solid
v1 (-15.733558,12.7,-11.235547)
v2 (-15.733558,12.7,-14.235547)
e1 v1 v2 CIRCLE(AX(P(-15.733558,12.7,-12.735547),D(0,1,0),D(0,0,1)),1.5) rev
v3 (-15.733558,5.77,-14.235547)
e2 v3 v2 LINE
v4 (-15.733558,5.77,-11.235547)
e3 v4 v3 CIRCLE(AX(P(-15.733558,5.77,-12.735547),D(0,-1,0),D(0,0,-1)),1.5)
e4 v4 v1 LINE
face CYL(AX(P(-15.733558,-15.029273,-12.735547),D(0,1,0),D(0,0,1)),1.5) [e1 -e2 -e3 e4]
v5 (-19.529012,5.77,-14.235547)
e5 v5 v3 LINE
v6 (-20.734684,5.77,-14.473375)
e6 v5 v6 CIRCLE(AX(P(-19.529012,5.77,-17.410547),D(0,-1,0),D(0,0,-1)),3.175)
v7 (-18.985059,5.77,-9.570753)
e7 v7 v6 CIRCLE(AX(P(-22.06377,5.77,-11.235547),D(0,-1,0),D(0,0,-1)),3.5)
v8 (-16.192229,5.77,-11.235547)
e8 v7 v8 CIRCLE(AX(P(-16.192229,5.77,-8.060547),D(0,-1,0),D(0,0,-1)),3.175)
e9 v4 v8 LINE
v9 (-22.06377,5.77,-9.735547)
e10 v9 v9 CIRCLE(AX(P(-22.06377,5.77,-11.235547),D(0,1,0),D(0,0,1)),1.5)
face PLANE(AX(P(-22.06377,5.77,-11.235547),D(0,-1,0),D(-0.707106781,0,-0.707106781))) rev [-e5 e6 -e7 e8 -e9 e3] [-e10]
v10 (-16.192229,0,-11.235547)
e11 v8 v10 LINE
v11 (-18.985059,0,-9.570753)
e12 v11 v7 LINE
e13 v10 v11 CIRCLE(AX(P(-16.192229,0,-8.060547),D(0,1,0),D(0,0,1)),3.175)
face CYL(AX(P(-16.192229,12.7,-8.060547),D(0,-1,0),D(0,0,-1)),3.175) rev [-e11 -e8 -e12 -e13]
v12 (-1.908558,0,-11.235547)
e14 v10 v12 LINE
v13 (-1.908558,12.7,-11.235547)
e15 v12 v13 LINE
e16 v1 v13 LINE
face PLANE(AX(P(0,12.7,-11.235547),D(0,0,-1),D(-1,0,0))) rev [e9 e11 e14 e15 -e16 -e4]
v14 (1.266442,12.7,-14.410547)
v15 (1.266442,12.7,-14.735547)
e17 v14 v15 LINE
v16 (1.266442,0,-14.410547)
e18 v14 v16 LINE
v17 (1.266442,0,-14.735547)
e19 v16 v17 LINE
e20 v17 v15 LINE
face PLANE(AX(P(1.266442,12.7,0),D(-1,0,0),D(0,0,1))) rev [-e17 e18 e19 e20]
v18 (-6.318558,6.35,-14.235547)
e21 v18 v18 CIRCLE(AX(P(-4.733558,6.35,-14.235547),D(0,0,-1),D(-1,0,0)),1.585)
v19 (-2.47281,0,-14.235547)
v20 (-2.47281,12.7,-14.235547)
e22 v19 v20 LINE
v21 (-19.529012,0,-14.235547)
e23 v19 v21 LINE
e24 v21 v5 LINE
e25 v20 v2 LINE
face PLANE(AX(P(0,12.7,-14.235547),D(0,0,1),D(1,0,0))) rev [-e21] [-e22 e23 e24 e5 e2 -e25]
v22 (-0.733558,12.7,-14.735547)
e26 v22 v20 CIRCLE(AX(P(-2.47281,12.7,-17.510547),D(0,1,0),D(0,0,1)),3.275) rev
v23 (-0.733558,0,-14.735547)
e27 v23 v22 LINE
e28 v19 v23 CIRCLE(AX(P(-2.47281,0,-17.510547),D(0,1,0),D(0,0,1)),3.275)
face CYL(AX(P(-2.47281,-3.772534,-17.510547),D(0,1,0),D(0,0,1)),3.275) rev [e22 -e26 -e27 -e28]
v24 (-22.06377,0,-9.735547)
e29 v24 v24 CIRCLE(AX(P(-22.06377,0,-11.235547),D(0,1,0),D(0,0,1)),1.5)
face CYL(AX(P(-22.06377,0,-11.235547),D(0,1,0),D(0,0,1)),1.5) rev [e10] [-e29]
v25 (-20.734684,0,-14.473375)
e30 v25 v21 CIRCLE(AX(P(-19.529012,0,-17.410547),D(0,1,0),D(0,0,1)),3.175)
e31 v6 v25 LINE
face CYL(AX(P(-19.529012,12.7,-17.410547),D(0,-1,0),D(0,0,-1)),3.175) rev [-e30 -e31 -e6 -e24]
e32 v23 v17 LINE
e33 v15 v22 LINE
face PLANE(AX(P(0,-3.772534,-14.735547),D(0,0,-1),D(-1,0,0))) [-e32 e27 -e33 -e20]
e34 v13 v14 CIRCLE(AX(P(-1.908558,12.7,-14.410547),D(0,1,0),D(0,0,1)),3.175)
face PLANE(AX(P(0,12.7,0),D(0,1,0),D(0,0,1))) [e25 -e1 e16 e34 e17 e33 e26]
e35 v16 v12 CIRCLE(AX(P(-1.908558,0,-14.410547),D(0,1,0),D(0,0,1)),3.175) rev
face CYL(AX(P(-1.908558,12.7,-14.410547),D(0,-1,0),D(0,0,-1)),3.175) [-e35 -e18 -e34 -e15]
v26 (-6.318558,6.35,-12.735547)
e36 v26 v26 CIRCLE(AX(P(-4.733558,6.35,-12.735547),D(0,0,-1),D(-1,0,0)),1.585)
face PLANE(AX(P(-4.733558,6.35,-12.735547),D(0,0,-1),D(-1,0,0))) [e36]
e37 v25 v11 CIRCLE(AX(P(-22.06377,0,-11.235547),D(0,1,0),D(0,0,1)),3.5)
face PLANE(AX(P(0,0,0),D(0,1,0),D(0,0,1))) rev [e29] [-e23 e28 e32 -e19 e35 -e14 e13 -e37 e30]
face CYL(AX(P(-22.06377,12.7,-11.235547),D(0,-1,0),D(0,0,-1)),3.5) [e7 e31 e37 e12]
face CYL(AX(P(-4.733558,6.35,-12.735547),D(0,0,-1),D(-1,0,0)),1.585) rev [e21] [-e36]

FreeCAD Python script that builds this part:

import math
import FreeCAD as App
import Part
import Sketcher
Q = App.Units.Quantity


def edges_at(feature, points):
    """Names of the edges that pass closest to the given points."""
    edges = feature.Shape.Edges
    near = lambda p: min(range(len(edges)), key=lambda i: edges[i].distToShape(Part.Vertex(*p))[0])
    return sorted({f"Edge{near(p) + 1}" for p in points})

doc = App.newDocument("Part")
body = doc.addObject("PartDesign::Body", "Body")

# Sketch on XZ plane
sketch1 = doc.addObject("Sketcher::SketchObject", "Sketch")
body.addObject(sketch1)
sketch1.AttachmentSupport = (doc.XZ_Plane, [""])
sketch1.MapMode = "FlatFace"
sketch1.addGeometry([
    Part.ArcOfCircle(Part.Circle(App.Vector(-22.1, -11.2, 0), App.Vector(0, 0, 1), 3.5), math.radians(0), math.radians(301)),
    Part.LineSegment(App.Vector(-18.6, -11.2, 0), App.Vector(1.3, -11.2, 0)),
    Part.LineSegment(App.Vector(1.3, -11.2, 0), App.Vector(1.3, -14.2, 0)),
    Part.LineSegment(App.Vector(1.3, -14.2, 0), App.Vector(-20.3, -14.2, 0)),
], False)
sketch1.addConstraint([
    Sketcher.Constraint("Coincident", 0, 1, 1, 1),
    Sketcher.Constraint("Coincident", 1, 2, 2, 1),
    Sketcher.Constraint("Coincident", 2, 2, 3, 1),
    Sketcher.Constraint("Coincident", 3, 2, 0, 2),
    Sketcher.Constraint("Horizontal", 1),
    Sketcher.Constraint("Vertical", 2),
    Sketcher.Constraint("Horizontal", 3),
    Sketcher.Constraint("Radius", 0, Q("3.5 mm")),
    Sketcher.Constraint("DistanceY", 2, 2, 2, 1, Q("3 mm")),
    Sketcher.Constraint("DistanceY", 2, 2, 0, 3, Q("3 mm")),
    Sketcher.Constraint("DistanceX", 1, 1, 1, 2, Q("19.830213 mm")),
    Sketcher.Constraint("DistanceX", 0, 3, -1, 1, Q("22.06377 mm")),
    Sketcher.Constraint("DistanceY", 0, 3, -1, 1, Q("11.235547 mm")),
])
pad1 = doc.addObject("PartDesign::Pad", "Pad")
body.addObject(pad1)
pad1.Profile = sketch1
pad1.Length = 12.7
pad1.Reversed = True

# Sketch on XZ plane
sketch2 = doc.addObject("Sketcher::SketchObject", "Sketch001")
body.addObject(sketch2)
sketch2.AttachmentSupport = (doc.XZ_Plane, [""])
sketch2.MapMode = "FlatFace"
sketch2.AttachmentOffset = App.Placement(App.Vector(0, 0, -5.77), App.Rotation())
sketch2.addGeometry([
    Part.LineSegment(App.Vector(-18.6, -11.2, 0), App.Vector(-15.7, -11.2, 0)),
    Part.ArcOfCircle(Part.Circle(App.Vector(-15.7, -12.7, 0), App.Vector(0, 0, 1), 1.5), math.radians(90), math.radians(270)),
    Part.LineSegment(App.Vector(-15.7, -14.2, 0), App.Vector(-20.3, -14.2, 0)),
    Part.ArcOfCircle(Part.Circle(App.Vector(-22.1, -11.2, 0), App.Vector(0, 0, 1), 3.5), math.radians(0), math.radians(301)),
], False)
sketch2.addConstraint([
    Sketcher.Constraint("Tangent", 0, 2, 1, 1),
    Sketcher.Constraint("Tangent", 1, 2, 2, 1),
    Sketcher.Constraint("Coincident", 2, 2, 3, 2),
    Sketcher.Constraint("Coincident", 3, 1, 0, 1),
    Sketcher.Constraint("Horizontal", 0),
    Sketcher.Constraint("Horizontal", 2),
    Sketcher.Constraint("Horizontal", 3, 3, 0, 2),
    Sketcher.Constraint("Radius", 1, Q("1.5 mm")),
    Sketcher.Constraint("Radius", 3, Q("3.5 mm")),
    Sketcher.Constraint("DistanceX", 0, 1, 0, 2, Q("2.830213 mm")),
    Sketcher.Constraint("DistanceX", 3, 3, -1, 1, Q("22.06377 mm")),
    Sketcher.Constraint("DistanceY", 1, 3, -1, 1, Q("12.735547 mm")),
])
pocket1 = doc.addObject("PartDesign::Pocket", "Pocket")
body.addObject(pocket1)
pocket1.Profile = sketch2
pocket1.Length = 6.93

# Sketch on XZ plane
sketch3 = doc.addObject("Sketcher::SketchObject", "Sketch002")
body.addObject(sketch3)
sketch3.AttachmentSupport = (doc.XZ_Plane, [""])
sketch3.MapMode = "FlatFace"
sketch3.AttachmentOffset = App.Placement(App.Vector(0, 0, -5.77), App.Rotation())
sketch3.addGeometry(Part.Circle(App.Vector(-22.1, -11.2, 0), App.Vector(0, 0, 1), 1.5), False)
sketch3.addConstraint([
    Sketcher.Constraint("Diameter", 0, Q("3 mm")),
    Sketcher.Constraint("DistanceX", 0, 3, -1, 1, Q("22.06377 mm")),
    Sketcher.Constraint("DistanceY", 0, 3, -1, 1, Q("11.235547 mm")),
])
pocket2 = doc.addObject("PartDesign::Pocket", "Pocket001")
body.addObject(pocket2)
pocket2.Profile = sketch3
pocket2.Type = "ThroughAll"
pocket2.Reversed = True

# Sketch on XZ plane
sketch4 = doc.addObject("Sketcher::SketchObject", "Sketch003")
body.addObject(sketch4)
sketch4.AttachmentSupport = (doc.XZ_Plane, [""])
sketch4.MapMode = "FlatFace"
sketch4.AttachmentOffset = App.Placement(App.Vector(0, 0, -12.7), App.Rotation())
sketch4.addGeometry([
    Part.LineSegment(App.Vector(1.3, -14.2, 0), App.Vector(1.3, -14.7, 0)),
    Part.LineSegment(App.Vector(1.3, -14.7, 0), App.Vector(-0.7, -14.7, 0)),
    Part.ArcOfCircle(Part.Circle(App.Vector(-2.5, -17.5, 0), App.Vector(0, 0, 1), 3.3), math.radians(58), math.radians(90)),
    Part.LineSegment(App.Vector(-2.5, -14.2, 0), App.Vector(1.3, -14.2, 0)),
], False)
sketch4.addConstraint([
    Sketcher.Constraint("Coincident", 0, 2, 1, 1),
    Sketcher.Constraint("Coincident", 1, 2, 2, 1),
    Sketcher.Constraint("Tangent", 2, 2, 3, 1),
    Sketcher.Constraint("Coincident", 3, 2, 0, 1),
    Sketcher.Constraint("Vertical", 0),
    Sketcher.Constraint("Horizontal", 1),
    Sketcher.Constraint("Horizontal", 3),
    Sketcher.Constraint("DistanceX", 1, 2, 1, 1, Q("2 mm")),
    Sketcher.Constraint("DistanceY", 0, 2, 0, 1, Q("0.5 mm")),
    Sketcher.Constraint("Radius", 2, Q("3.275 mm")),
    Sketcher.Constraint("DistanceX", 2, 3, -1, 1, Q("2.47281 mm")),
    Sketcher.Constraint("DistanceY", 2, 3, -1, 1, Q("17.510547 mm")),
])
pad2 = doc.addObject("PartDesign::Pad", "Pad001")
body.addObject(pad2)
pad2.Profile = sketch4
pad2.Length = 12.7
doc.recompute()

fillet = doc.addObject("PartDesign::Fillet", "Fillet")
body.addObject(fillet)
fillet.Base = (pad2, edges_at(pad2, [(-20.261, 2.885, -14.236), (-18.564, 2.885, -11.236), (1.266, 6.35, -11.236)]))
fillet.Radius = 3.175

# Sketch on XY plane
sketch5 = doc.addObject("Sketcher::SketchObject", "Sketch004")
body.addObject(sketch5)
sketch5.AttachmentSupport = (doc.XY_Plane, [""])
sketch5.MapMode = "FlatFace"
sketch5.AttachmentOffset = App.Placement(App.Vector(0, 0, -14.235547), App.Rotation())
sketch5.addGeometry([
    Part.Circle(App.Vector(37.2, -42.8, 0), App.Vector(0, 0, 1), 2),
    Part.Circle(App.Vector(37.2, -47.5, 0), App.Vector(0, 0, 1), 2),
], False)
sketch5.addConstraint([
    Sketcher.Constraint("Equal", 0, 1),
    Sketcher.Constraint("Vertical", 0, 3, 1, 3),
    Sketcher.Constraint("Diameter", 0, Q("4 mm")),
    Sketcher.Constraint("DistanceY", 1, 3, 0, 3, Q("4.7 mm")),
    Sketcher.Constraint("DistanceX", -1, 1, 0, 3, Q("37.221492 mm")),
    Sketcher.Constraint("DistanceY", 0, 3, -1, 1, Q("42.831379 mm")),
])
pocket3 = doc.addObject("PartDesign::Pocket", "Pocket002")
body.addObject(pocket3)
pocket3.Profile = sketch5
pocket3.Length = 10
pocket3.Reversed = True

# Sketch on XY plane
sketch6 = doc.addObject("Sketcher::SketchObject", "Sketch005")
body.addObject(sketch6)
sketch6.AttachmentSupport = (doc.XY_Plane, [""])
sketch6.MapMode = "FlatFace"
sketch6.AttachmentOffset = App.Placement(App.Vector(0, 0, -14.235547), App.Rotation())
sketch6.addGeometry(Part.Circle(App.Vector(-4.7, 6.3, 0), App.Vector(0, 0, 1), 1.6), False)
sketch6.addConstraint([
    Sketcher.Constraint("Diameter", 0, Q("3.17 mm")),
    Sketcher.Constraint("DistanceY", -1, 1, 0, 3, Q("6.35 mm")),
    Sketcher.Constraint("DistanceX", 0, 3, -1, 1, Q("4.733558 mm")),
])
pocket4 = doc.addObject("PartDesign::Pocket", "Pocket003")
body.addObject(pocket4)
pocket4.Profile = sketch6
pocket4.Length = 1.5
pocket4.Reversed = True

doc.recompute()
